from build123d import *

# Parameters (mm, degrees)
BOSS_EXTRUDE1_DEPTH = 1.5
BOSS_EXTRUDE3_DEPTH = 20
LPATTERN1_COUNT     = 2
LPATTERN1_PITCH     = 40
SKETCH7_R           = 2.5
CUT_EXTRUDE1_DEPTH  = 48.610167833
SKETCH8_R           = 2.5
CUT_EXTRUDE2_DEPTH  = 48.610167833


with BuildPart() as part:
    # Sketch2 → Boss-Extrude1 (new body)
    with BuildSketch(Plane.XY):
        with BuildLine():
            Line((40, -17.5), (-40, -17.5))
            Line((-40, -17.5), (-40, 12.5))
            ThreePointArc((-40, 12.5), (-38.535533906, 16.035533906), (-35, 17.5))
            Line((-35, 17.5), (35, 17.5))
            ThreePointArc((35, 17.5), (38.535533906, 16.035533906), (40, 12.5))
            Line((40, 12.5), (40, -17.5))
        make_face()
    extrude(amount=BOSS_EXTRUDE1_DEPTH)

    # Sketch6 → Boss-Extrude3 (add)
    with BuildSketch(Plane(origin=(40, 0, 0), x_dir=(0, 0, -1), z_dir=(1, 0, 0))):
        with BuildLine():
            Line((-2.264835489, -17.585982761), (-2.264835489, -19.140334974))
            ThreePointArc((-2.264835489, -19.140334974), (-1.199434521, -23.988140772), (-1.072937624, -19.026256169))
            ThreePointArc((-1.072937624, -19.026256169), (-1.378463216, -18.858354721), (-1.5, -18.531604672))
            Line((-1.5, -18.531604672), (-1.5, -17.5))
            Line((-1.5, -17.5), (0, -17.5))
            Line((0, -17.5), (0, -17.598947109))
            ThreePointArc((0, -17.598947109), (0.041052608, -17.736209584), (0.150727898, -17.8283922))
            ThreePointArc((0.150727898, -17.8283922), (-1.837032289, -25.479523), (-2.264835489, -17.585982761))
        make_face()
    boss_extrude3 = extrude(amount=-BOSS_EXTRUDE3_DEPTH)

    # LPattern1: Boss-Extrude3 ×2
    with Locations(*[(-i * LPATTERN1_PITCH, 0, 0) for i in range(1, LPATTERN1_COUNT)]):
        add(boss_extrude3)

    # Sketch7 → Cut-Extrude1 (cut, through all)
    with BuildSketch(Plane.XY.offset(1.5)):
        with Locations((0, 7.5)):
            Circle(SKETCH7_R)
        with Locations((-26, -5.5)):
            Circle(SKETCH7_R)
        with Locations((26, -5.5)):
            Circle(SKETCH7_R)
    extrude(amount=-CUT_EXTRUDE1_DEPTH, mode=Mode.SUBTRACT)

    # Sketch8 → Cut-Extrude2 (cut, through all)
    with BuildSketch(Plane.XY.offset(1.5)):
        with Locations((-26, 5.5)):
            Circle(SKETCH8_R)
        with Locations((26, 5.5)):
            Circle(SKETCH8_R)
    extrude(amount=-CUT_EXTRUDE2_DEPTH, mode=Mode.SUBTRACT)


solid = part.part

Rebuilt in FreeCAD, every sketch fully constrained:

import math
import FreeCAD as App
import Part
import Sketcher

V = App.Vector
Q = App.Units.Quantity

doc = App.newDocument("Part")
params = doc.addObject("Spreadsheet::Sheet", "Params")
for row, (alias, value) in enumerate([
    ("sketch1_radius", "5 mm"),
    ("sketch1_width", "80 mm"),
    ("sketch1_height", "30 mm"),
    ("pad1_length", "1.5 mm"),
    ("sketch2_radius", "4 mm"),
    ("sketch2_radius2", "0.5 mm"),
    ("sketch2_radius3", "2.5 mm"),
    ("sketch2_radius4", "0.25 mm"),
    ("sketch2_height", "1.5 mm"),
    ("pad2_length", "20 mm"),
    ("linearpattern_pitch", "40 mm"),
    ("sketch3_diameter", "5 mm"),
    ("sketch4_diameter", "5 mm"),
], start=1):
    params.set(f"A{row}", alias)
    params.set(f"B{row}", "=" + value)
    params.setAlias(f"B{row}", alias)

body = doc.addObject("PartDesign::Body", "Body")

sketch1 = body.newObject("Sketcher::SketchObject", "Sketch")
sketch1.AttachmentSupport = (doc.getObject("XY_Plane"), [""])
sketch1.MapMode = "FlatFace"
sketch1.addGeometry([
    Part.LineSegment(V(-40, -18, 0), V(40, -18, 0)),
    Part.LineSegment(V(40, -18, 0), V(40, 12, 0)),
    Part.ArcOfCircle(Part.Circle(V(35, 12, 0), V(0, 0, 1), 5), math.radians(0), math.radians(90)),
    Part.LineSegment(V(35, 18, 0), V(-35, 18, 0)),
    Part.ArcOfCircle(Part.Circle(V(-35, 12, 0), V(0, 0, 1), 5), math.radians(90), math.radians(180)),
    Part.LineSegment(V(-40, 12, 0), V(-40, -18, 0)),
], False)
sketch1.addConstraint([
    Sketcher.Constraint("Coincident", 0, 2, 1, 1),
    Sketcher.Constraint("Tangent", 1, 2, 2, 1),
    Sketcher.Constraint("Tangent", 2, 2, 3, 1),
    Sketcher.Constraint("Tangent", 3, 2, 4, 1),
    Sketcher.Constraint("Tangent", 4, 2, 5, 1),
    Sketcher.Constraint("Coincident", 5, 2, 0, 1),
    Sketcher.Constraint("Horizontal", 0),
    Sketcher.Constraint("Vertical", 1),
    Sketcher.Constraint("Horizontal", 3),
    Sketcher.Constraint("Vertical", 5),
    Sketcher.Constraint("Equal", 2, 4),
    Sketcher.Constraint("Radius", 2, Q("5 mm")),
    Sketcher.Constraint("DistanceX", 0, 1, 0, 2, Q("80 mm")),
    Sketcher.Constraint("DistanceY", 1, 1, 1, 2, Q("30 mm")),
    Sketcher.Constraint("DistanceX", -1, 1, 2, 3, Q("35 mm")),
    Sketcher.Constraint("DistanceY", -1, 1, 2, 3, Q("12.5 mm")),
])
sketch1.setExpression("Constraints[11]", "Params.sketch1_radius")
sketch1.setExpression("Constraints[12]", "Params.sketch1_width")
sketch1.setExpression("Constraints[13]", "Params.sketch1_height")
pad1 = body.newObject("PartDesign::Pad", "Pad")
pad1.Profile = sketch1
pad1.setExpression("Length", "Params.pad1_length")

sketch2 = body.newObject("Sketcher::SketchObject", "Sketch001")
sketch2.AttachmentSupport = (doc.getObject("YZ_Plane"), [""])
sketch2.MapMode = "FlatFace"
sketch2.AttachmentOffset = App.Placement(V(0, 0, 40), App.Rotation())
sketch2.addGeometry([
    Part.LineSegment(V(-19.14, 2.26, 0), V(-17.59, 2.26, 0)),
    Part.ArcOfCircle(Part.Circle(V(-21.5, 1.44, 0), V(0, 0, 1), 4), math.radians(12), math.radians(337)),
    Part.ArcOfCircle(Part.Circle(V(-17.6, -0.25, 0), V(0, 0, 1), 0.25), math.radians(90), math.radians(157)),
    Part.LineSegment(V(-17.6, 0, 0), V(-17.5, 0, 0)),
    Part.LineSegment(V(-17.5, 0, 0), V(-17.5, 1.5, 0)),
    Part.LineSegment(V(-17.5, 1.5, 0), V(-18.53, 1.5, 0)),
    Part.ArcOfCircle(Part.Circle(V(-18.53, 1, 0), V(0, 0, 1), 0.5), math.radians(90), math.radians(172)),
    Part.ArcOfCircle(Part.Circle(V(-21.5, 1.44, 0), V(0, 0, 1), 2.5), math.radians(19), math.radians(352)),
], False)
sketch2.addConstraint([
    Sketcher.Constraint("Coincident", 0, 2, 1, 1),
    Sketcher.Constraint("Tangent", 1, 2, 2, 2),
    Sketcher.Constraint("Tangent", 2, 1, 3, 1),
    Sketcher.Constraint("Coincident", 3, 2, 4, 1),
    Sketcher.Constraint("Coincident", 4, 2, 5, 1),
    Sketcher.Constraint("Tangent", 5, 2, 6, 1),
    Sketcher.Constraint("Tangent", 6, 2, 7, 2),
    Sketcher.Constraint("Coincident", 7, 1, 0, 1),
    Sketcher.Constraint("Horizontal", 0),
    Sketcher.Constraint("Horizontal", 3),
    Sketcher.Constraint("Vertical", 4),
    Sketcher.Constraint("Horizontal", 5),
    Sketcher.Constraint("Coincident", 7, 3, 1, 3),
    Sketcher.Constraint("PointOnObject", 2, 1, -1),
    Sketcher.Constraint("Radius", 1, Q("4 mm")),
    Sketcher.Constraint("Radius", 6, Q("0.5 mm")),
    Sketcher.Constraint("Radius", 7, Q("2.5 mm")),
    Sketcher.Constraint("Radius", 2, Q("0.25 mm")),
    Sketcher.Constraint("DistanceY", 4, 1, 4, 2, Q("1.5 mm")),
    Sketcher.Constraint("DistanceX", 3, 2, -1, 1, Q("17.5 mm")),
    Sketcher.Constraint("DistanceX", 0, 1, 0, 2, Q("1.554352 mm")),
    Sketcher.Constraint("DistanceX", 3, 1, 3, 2, Q("0.098947 mm")),
    Sketcher.Constraint("DistanceX", 5, 2, 5, 1, Q("1.031605 mm")),
])
sketch2.setExpression("Constraints[14]", "Params.sketch2_radius")
sketch2.setExpression("Constraints[15]", "Params.sketch2_radius2")
sketch2.setExpression("Constraints[16]", "Params.sketch2_radius3")
sketch2.setExpression("Constraints[17]", "Params.sketch2_radius4")
sketch2.setExpression("Constraints[18]", "Params.sketch2_height")
pad2 = body.newObject("PartDesign::Pad", "Pad001")
pad2.Profile = sketch2
pad2.setExpression("Length", "Params.pad2_length")
pad2.Reversed = True
doc.recompute()

linearpattern = body.newObject("PartDesign::LinearPattern", "LinearPattern")
linearpattern.Originals = [pad2]
linearpattern.Direction = (doc.getObject("X_Axis"), [""])
linearpattern.Mode = "offset"
linearpattern.setExpression("Offset", "Params.linearpattern_pitch")
linearpattern.Occurrences = 2
linearpattern.Reversed = True
body.Tip = linearpattern

sketch3 = body.newObject("Sketcher::SketchObject", "Sketch002")
sketch3.AttachmentSupport = (doc.getObject("XY_Plane"), [""])
sketch3.MapMode = "FlatFace"
sketch3.AttachmentOffset = App.Placement(V(0, 0, 1.5), App.Rotation())
sketch3.addGeometry([
    Part.Circle(V(0, 7.5, 0), V(0, 0, 1), 2.5),
    Part.Circle(V(-26, -5.5, 0), V(0, 0, 1), 2.5),
    Part.Circle(V(26, -5.5, 0), V(0, 0, 1), 2.5),
], False)
sketch3.addConstraint([
    Sketcher.Constraint("Equal", 0, 1),
    Sketcher.Constraint("Equal", 1, 2),
    Sketcher.Constraint("Symmetric", 1, 3, 2, 3, -2),
    Sketcher.Constraint("PointOnObject", 0, 3, -2),
    Sketcher.Constraint("Diameter", 0, Q("5 mm")),
    Sketcher.Constraint("DistanceX", 1, 3, -1, 1, Q("26 mm")),
    Sketcher.Constraint("DistanceY", 1, 3, 0, 3, Q("13 mm")),
    Sketcher.Constraint("DistanceY", -1, 1, 0, 3, Q("7.5 mm")),
])
sketch3.setExpression("Constraints[4]", "Params.sketch3_diameter")
pocket1 = body.newObject("PartDesign::Pocket", "Pocket")
pocket1.Profile = sketch3
pocket1.Type = "ThroughAll"

sketch4 = body.newObject("Sketcher::SketchObject", "Sketch003")
sketch4.AttachmentSupport = (doc.getObject("XY_Plane"), [""])
sketch4.MapMode = "FlatFace"
sketch4.AttachmentOffset = App.Placement(V(0, 0, 1.5), App.Rotation())
sketch4.addGeometry([
    Part.Circle(V(-26, 5.5, 0), V(0, 0, 1), 2.5),
    Part.Circle(V(26, 5.5, 0), V(0, 0, 1), 2.5),
], False)
sketch4.addConstraint([
    Sketcher.Constraint("Equal", 0, 1),
    Sketcher.Constraint("Symmetric", 0, 3, 1, 3, -2),
    Sketcher.Constraint("Diameter", 0, Q("5 mm")),
    Sketcher.Constraint("DistanceX", 0, 3, -1, 1, Q("26 mm")),
    Sketcher.Constraint("DistanceY", -1, 1, 0, 3, Q("5.5 mm")),
])
sketch4.setExpression("Constraints[2]", "Params.sketch4_diameter")
pocket2 = body.newObject("PartDesign::Pocket", "Pocket001")
pocket2.Profile = sketch4
pocket2.Type = "ThroughAll"

doc.recompute()
